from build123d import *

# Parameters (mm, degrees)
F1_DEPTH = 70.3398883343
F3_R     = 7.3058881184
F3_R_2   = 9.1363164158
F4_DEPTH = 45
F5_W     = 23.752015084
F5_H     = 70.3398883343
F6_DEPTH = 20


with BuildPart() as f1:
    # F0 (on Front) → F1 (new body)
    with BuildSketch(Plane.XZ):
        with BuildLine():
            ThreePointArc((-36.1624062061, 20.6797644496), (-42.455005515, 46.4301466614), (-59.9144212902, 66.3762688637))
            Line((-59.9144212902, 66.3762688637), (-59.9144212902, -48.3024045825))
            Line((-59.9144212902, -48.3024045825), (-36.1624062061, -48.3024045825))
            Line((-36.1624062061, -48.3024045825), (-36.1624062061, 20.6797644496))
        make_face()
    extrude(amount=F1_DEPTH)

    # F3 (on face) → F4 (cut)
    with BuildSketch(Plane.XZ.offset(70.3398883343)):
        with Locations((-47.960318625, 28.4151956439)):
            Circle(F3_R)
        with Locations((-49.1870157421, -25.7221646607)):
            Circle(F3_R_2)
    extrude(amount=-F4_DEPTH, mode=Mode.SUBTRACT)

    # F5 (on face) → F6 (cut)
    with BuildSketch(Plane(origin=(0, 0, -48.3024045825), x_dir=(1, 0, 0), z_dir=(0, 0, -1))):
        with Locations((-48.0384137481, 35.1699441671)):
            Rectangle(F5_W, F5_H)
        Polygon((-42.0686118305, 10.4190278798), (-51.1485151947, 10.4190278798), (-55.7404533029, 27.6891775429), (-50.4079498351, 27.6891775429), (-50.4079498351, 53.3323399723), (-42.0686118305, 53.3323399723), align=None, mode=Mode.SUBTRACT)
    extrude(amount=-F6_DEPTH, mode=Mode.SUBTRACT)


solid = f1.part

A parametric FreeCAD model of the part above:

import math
import FreeCAD as App
import Part
import Sketcher
from FreeCAD import Vector
Q = App.Units.Quantity

doc = App.newDocument("Part")
body = doc.addObject("PartDesign::Body", "Body")

# Sketch on XZ plane
sketch1 = body.newObject("Sketcher::SketchObject", "Sketch")
sketch1.AttachmentSupport = (doc.getObject("XZ_Plane"), [""])
sketch1.MapMode = "FlatFace"
sketch1.addGeometry(Part.ArcOfCircle(Part.Circle(Vector(-92, 21, 0), Vector(0, 0, 1), 56), math.radians(0), math.radians(55)), False)
sketch1.addGeometry(Part.LineSegment(Vector(-60, 66, 0), Vector(-60, -48, 0)), False)
sketch1.addGeometry(Part.LineSegment(Vector(-60, -48, 0), Vector(-36, -48, 0)), False)
sketch1.addGeometry(Part.LineSegment(Vector(-36, -48, 0), Vector(-36, 21, 0)), False)
sketch1.addConstraint(Sketcher.Constraint("Coincident", 0, 2, 1, 1))
sketch1.addConstraint(Sketcher.Constraint("Coincident", 1, 2, 2, 1))
sketch1.addConstraint(Sketcher.Constraint("Coincident", 2, 2, 3, 1))
sketch1.addConstraint(Sketcher.Constraint("Tangent", 3, 2, 0, 1))
sketch1.addConstraint(Sketcher.Constraint("Vertical", 1))
sketch1.addConstraint(Sketcher.Constraint("Horizontal", 2))
sketch1.addConstraint(Sketcher.Constraint("Vertical", 3))
sketch1.addConstraint(Sketcher.Constraint("Radius", 0, Q("55.833762 mm")))
sketch1.addConstraint(Sketcher.Constraint("DistanceY", 3, 1, 3, 2, Q("68.982169 mm")))
sketch1.addConstraint(Sketcher.Constraint("DistanceX", 2, 1, 2, 2, Q("23.752015 mm")))
sketch1.addConstraint(Sketcher.Constraint("DistanceX", 0, 3, -1, 1, Q("91.996169 mm")))
sketch1.addConstraint(Sketcher.Constraint("DistanceY", -1, 1, 0, 2, Q("66.376269 mm")))
pad1 = body.newObject("PartDesign::Pad", "Pad")
pad1.Profile = sketch1
pad1.Length = 70.339888

# Sketch on XZ plane
sketch2 = body.newObject("Sketcher::SketchObject", "Sketch001")
sketch2.AttachmentSupport = (doc.getObject("XZ_Plane"), [""])
sketch2.MapMode = "FlatFace"
sketch2.AttachmentOffset = App.Placement(Vector(0, 0, 70.339888), App.Rotation())
sketch2.addGeometry(Part.Circle(Vector(-48, 28, 0), Vector(0, 0, 1), 7), False)
sketch2.addGeometry(Part.Circle(Vector(-49, -26, 0), Vector(0, 0, 1), 9), False)
sketch2.addConstraint(Sketcher.Constraint("Diameter", 0, Q("14.611776 mm")))
sketch2.addConstraint(Sketcher.Constraint("Diameter", 1, Q("18.272633 mm")))
sketch2.addConstraint(Sketcher.Constraint("DistanceX", 0, 3, -1, 1, Q("47.960319 mm")))
sketch2.addConstraint(Sketcher.Constraint("DistanceY", 1, 3, 0, 3, Q("54.13736 mm")))
sketch2.addConstraint(Sketcher.Constraint("DistanceY", -1, 1, 0, 3, Q("28.415196 mm")))
sketch2.addConstraint(Sketcher.Constraint("DistanceX", 1, 3, -1, 1, Q("49.187016 mm")))
pocket1 = body.newObject("PartDesign::Pocket", "Pocket")
pocket1.Profile = sketch2
pocket1.Length = 45

# Sketch on XY plane
sketch3 = body.newObject("Sketcher::SketchObject", "Sketch002")
sketch3.AttachmentSupport = (doc.getObject("XY_Plane"), [""])
sketch3.MapMode = "FlatFace"
sketch3.AttachmentOffset = App.Placement(Vector(0, 0, -48.302405), App.Rotation())
sketch3.addGeometry(Part.LineSegment(Vector(-60, -70, 0), Vector(-60, 0, 0)), False)
sketch3.addGeometry(Part.LineSegment(Vector(-60, 0, 0), Vector(-36, 0, 0)), False)
sketch3.addGeometry(Part.LineSegment(Vector(-36, 0, 0), Vector(-36, -70, 0)), False)
sketch3.addGeometry(Part.LineSegment(Vector(-36, -70, 0), Vector(-60, -70, 0)), False)
sketch3.addGeometry(Part.LineSegment(Vector(-42, -53, 0), Vector(-42, -10, 0)), False)
sketch3.addGeometry(Part.LineSegment(Vector(-42, -10, 0), Vector(-51, -10, 0)), False)
sketch3.addGeometry(Part.LineSegment(Vector(-51, -10, 0), Vector(-56, -28, 0)), False)
sketch3.addGeometry(Part.LineSegment(Vector(-56, -28, 0), Vector(-50, -28, 0)), False)
sketch3.addGeometry(Part.LineSegment(Vector(-50, -28, 0), Vector(-50, -53, 0)), False)
sketch3.addGeometry(Part.LineSegment(Vector(-50, -53, 0), Vector(-42, -53, 0)), False)
sketch3.addConstraint(Sketcher.Constraint("Coincident", 0, 2, 1, 1))
sketch3.addConstraint(Sketcher.Constraint("Coincident", 1, 2, 2, 1))
sketch3.addConstraint(Sketcher.Constraint("Coincident", 2, 2, 3, 1))
sketch3.addConstraint(Sketcher.Constraint("Coincident", 3, 2, 0, 1))
sketch3.addConstraint(Sketcher.Constraint("Coincident", 4, 2, 5, 1))
sketch3.addConstraint(Sketcher.Constraint("Coincident", 5, 2, 6, 1))
sketch3.addConstraint(Sketcher.Constraint("Coincident", 6, 2, 7, 1))
sketch3.addConstraint(Sketcher.Constraint("Coincident", 7, 2, 8, 1))
sketch3.addConstraint(Sketcher.Constraint("Coincident", 8, 2, 9, 1))
sketch3.addConstraint(Sketcher.Constraint("Coincident", 9, 2, 4, 1))
sketch3.addConstraint(Sketcher.Constraint("Vertical", 0))
sketch3.addConstraint(Sketcher.Constraint("Horizontal", 1))
sketch3.addConstraint(Sketcher.Constraint("Vertical", 2))
sketch3.addConstraint(Sketcher.Constraint("Horizontal", 3))
sketch3.addConstraint(Sketcher.Constraint("Vertical", 4))
sketch3.addConstraint(Sketcher.Constraint("Horizontal", 5))
sketch3.addConstraint(Sketcher.Constraint("Horizontal", 7))
sketch3.addConstraint(Sketcher.Constraint("Vertical", 8))
sketch3.addConstraint(Sketcher.Constraint("Horizontal", 9))
sketch3.addConstraint(Sketcher.Constraint("PointOnObject", 0, 2, -1))
sketch3.addConstraint(Sketcher.Constraint("DistanceX", 9, 1, 9, 2, Q("8.339338 mm")))
sketch3.addConstraint(Sketcher.Constraint("DistanceY", 0, 1, 0, 2, Q("70.339888 mm")))
sketch3.addConstraint(Sketcher.Constraint("DistanceX", 1, 1, 1, 2, Q("23.752015 mm")))
sketch3.addConstraint(Sketcher.Constraint("DistanceX", 5, 2, 5, 1, Q("9.079903 mm")))
sketch3.addConstraint(Sketcher.Constraint("DistanceX", 7, 1, 7, 2, Q("5.332503 mm")))
sketch3.addConstraint(Sketcher.Constraint("DistanceY", 4, 1, 4, 2, Q("42.913312 mm")))
sketch3.addConstraint(Sketcher.Constraint("DistanceY", 8, 2, 8, 1, Q("25.643162 mm")))
sketch3.addConstraint(Sketcher.Constraint("DistanceX", 0, 2, -1, 1, Q("59.914421 mm")))
sketch3.addConstraint(Sketcher.Constraint("DistanceX", 4, 2, -1, 1, Q("42.068612 mm")))
sketch3.addConstraint(Sketcher.Constraint("DistanceY", 8, 2, -1, 1, Q("53.33234 mm")))
pocket2 = body.newObject("PartDesign::Pocket", "Pocket001")
pocket2.Profile = sketch3
pocket2.Length = 20
pocket2.Reversed = True

doc.recompute()
